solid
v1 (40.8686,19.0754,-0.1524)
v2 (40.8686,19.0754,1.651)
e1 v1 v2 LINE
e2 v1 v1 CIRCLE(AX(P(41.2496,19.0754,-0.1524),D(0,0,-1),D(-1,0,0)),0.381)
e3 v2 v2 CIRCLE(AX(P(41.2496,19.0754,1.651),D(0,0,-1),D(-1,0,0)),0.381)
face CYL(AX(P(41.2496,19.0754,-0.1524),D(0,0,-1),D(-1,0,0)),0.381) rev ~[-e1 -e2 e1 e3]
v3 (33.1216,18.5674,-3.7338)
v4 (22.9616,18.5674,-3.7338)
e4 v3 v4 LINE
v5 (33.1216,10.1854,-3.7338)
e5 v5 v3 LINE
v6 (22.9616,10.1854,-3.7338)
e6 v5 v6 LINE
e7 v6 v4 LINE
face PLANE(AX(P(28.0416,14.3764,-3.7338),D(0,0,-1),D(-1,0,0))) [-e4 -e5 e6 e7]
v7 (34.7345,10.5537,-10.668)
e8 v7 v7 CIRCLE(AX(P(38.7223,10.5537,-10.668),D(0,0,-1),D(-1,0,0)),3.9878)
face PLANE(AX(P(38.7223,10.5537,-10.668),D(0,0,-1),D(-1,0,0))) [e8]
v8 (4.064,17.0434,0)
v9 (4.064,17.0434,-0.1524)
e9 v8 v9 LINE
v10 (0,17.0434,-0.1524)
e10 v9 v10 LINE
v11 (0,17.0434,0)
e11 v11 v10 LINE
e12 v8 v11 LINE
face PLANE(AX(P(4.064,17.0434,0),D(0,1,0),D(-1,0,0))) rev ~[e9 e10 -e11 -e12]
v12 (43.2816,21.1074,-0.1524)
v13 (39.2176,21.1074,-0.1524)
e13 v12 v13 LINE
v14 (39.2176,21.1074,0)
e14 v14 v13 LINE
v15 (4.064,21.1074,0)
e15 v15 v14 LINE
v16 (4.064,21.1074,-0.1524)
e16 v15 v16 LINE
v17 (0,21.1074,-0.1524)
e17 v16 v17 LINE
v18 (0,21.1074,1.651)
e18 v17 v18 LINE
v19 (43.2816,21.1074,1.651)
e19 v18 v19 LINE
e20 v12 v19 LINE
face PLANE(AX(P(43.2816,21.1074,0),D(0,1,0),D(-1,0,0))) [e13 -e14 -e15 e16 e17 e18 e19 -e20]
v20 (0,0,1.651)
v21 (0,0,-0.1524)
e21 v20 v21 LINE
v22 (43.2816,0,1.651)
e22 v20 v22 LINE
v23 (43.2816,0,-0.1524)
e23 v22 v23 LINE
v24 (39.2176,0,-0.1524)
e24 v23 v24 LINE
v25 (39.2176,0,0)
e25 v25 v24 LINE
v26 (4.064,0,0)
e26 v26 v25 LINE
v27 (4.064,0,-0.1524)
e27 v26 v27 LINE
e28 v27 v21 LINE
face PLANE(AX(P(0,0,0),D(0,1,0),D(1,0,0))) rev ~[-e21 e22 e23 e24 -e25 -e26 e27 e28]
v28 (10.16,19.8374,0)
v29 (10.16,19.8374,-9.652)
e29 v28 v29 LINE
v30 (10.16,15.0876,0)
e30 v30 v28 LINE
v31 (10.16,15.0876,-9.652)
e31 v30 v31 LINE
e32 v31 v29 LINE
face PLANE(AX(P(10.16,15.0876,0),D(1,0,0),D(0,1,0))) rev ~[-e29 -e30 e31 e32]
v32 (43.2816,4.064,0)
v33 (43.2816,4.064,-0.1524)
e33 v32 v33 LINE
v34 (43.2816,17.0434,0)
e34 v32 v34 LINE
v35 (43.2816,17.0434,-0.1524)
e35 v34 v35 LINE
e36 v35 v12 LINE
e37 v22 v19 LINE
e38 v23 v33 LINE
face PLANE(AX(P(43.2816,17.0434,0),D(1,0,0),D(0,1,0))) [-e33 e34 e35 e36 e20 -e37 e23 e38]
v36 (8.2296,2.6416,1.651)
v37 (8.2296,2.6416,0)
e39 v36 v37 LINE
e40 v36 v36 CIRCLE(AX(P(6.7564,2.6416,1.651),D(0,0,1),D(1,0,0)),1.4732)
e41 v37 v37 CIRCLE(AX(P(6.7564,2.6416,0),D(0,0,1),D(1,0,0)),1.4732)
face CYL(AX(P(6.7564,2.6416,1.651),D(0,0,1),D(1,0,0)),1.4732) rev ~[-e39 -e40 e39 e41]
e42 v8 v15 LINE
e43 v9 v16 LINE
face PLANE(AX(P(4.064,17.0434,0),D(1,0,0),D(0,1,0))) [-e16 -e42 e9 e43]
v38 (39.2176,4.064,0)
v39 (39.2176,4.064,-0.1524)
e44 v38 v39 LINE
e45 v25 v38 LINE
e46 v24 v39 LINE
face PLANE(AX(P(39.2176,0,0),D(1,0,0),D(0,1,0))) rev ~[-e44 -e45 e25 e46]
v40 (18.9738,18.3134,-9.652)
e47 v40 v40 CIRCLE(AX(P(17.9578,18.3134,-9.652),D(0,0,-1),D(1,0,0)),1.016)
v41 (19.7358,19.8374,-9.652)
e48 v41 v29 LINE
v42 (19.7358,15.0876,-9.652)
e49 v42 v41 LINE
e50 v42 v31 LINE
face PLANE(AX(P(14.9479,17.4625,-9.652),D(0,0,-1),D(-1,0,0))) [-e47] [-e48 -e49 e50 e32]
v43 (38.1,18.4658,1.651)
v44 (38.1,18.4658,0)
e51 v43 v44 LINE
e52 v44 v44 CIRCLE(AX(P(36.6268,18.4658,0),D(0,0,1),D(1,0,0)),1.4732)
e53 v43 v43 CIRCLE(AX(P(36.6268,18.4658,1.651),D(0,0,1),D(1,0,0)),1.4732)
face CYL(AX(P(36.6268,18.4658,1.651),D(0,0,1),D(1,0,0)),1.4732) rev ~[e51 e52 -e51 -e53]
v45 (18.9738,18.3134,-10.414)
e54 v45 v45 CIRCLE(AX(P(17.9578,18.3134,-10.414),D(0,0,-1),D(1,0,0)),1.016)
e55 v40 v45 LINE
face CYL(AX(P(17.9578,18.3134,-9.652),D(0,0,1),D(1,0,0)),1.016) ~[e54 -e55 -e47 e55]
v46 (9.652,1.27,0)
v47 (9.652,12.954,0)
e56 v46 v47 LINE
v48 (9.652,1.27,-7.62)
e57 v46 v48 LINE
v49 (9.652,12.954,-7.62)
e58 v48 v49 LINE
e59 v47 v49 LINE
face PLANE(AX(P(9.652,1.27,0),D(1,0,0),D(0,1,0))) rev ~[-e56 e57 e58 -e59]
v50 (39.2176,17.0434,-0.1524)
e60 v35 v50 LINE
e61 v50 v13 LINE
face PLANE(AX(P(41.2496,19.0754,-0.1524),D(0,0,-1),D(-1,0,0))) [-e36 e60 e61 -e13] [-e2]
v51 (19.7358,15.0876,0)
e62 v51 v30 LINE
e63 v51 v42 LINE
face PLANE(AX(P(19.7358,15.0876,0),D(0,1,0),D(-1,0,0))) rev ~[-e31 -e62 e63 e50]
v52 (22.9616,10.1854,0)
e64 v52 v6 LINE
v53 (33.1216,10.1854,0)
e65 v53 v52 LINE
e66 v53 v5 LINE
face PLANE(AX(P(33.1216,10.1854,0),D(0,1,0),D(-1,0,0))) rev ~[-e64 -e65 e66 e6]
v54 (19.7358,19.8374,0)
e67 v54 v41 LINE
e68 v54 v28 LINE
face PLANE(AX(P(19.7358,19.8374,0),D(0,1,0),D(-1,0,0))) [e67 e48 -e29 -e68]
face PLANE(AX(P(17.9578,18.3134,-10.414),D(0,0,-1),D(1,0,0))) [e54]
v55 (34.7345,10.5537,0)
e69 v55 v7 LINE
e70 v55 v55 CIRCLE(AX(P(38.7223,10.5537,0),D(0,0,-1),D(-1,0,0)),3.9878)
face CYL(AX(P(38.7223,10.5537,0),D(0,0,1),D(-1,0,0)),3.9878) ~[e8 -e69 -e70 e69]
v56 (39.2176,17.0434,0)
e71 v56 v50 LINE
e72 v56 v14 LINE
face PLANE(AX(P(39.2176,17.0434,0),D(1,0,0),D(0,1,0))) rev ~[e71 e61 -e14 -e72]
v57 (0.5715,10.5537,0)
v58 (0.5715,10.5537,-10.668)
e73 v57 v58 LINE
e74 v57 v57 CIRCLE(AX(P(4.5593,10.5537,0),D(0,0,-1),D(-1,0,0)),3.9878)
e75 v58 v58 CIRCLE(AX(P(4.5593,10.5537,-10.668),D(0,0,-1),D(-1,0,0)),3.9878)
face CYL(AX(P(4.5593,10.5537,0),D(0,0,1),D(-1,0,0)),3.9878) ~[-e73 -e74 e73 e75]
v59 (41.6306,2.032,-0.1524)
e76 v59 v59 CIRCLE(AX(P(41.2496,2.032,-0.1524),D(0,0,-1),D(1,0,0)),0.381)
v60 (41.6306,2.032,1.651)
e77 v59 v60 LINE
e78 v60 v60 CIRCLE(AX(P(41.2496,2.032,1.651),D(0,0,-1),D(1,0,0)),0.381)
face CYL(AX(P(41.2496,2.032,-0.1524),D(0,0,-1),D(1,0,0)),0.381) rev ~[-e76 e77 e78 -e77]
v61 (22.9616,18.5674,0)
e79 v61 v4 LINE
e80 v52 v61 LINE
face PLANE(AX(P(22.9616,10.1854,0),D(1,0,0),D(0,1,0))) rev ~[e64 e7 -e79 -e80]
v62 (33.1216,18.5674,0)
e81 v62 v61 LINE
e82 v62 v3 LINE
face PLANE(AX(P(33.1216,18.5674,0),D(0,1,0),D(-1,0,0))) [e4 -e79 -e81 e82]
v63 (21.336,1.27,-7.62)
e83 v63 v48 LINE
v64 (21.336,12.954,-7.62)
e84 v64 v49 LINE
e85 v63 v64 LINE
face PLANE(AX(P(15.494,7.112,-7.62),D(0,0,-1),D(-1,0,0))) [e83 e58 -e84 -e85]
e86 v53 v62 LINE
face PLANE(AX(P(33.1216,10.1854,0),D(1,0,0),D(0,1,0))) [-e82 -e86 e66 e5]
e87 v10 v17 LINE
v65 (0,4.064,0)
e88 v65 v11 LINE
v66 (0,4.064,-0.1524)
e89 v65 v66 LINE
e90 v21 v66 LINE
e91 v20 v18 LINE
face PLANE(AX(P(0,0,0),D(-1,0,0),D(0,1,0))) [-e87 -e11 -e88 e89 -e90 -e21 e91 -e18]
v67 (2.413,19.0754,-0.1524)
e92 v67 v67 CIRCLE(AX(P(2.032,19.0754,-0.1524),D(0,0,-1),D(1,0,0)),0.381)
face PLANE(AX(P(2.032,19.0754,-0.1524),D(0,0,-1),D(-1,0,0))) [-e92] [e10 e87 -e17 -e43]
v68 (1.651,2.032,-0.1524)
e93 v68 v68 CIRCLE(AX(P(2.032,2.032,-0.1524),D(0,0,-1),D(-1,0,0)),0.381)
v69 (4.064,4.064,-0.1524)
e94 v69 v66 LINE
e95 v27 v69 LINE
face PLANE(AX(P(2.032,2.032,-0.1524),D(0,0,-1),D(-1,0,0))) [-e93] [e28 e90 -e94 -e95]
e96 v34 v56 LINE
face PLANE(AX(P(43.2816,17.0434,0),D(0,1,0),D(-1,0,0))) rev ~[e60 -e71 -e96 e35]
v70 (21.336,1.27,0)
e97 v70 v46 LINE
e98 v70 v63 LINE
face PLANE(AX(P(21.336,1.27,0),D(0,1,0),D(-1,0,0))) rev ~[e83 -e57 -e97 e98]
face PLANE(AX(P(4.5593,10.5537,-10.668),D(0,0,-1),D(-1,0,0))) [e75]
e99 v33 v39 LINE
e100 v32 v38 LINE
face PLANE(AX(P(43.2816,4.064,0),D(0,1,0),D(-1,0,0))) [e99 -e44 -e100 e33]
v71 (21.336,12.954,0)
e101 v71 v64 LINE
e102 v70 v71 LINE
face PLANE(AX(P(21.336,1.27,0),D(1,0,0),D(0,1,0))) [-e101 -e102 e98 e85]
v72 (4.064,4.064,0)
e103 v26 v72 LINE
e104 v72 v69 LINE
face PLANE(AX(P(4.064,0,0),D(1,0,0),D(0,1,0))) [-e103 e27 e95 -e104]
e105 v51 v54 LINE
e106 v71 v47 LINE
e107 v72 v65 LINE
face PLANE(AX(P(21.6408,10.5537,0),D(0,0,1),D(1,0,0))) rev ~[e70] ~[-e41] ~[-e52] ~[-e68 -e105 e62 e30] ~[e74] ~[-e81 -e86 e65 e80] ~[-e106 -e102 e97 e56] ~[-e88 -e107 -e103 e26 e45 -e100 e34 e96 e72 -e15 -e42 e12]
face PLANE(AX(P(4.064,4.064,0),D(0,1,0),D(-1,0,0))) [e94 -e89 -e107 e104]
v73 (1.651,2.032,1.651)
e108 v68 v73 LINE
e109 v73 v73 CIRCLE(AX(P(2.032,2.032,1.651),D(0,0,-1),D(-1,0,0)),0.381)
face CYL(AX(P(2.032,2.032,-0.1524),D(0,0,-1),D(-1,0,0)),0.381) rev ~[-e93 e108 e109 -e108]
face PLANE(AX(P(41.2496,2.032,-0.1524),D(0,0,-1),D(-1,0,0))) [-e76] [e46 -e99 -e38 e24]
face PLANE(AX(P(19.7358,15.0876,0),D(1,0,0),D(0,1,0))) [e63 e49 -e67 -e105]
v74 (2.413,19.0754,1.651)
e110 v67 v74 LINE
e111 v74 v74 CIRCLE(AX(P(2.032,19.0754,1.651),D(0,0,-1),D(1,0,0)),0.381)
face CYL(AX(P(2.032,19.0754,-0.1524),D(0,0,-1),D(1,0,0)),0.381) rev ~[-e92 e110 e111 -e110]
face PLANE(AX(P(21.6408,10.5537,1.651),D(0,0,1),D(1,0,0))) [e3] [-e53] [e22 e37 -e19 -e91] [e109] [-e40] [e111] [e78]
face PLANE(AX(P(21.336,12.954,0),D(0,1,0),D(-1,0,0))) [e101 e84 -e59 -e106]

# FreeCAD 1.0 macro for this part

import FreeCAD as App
import Part
import Sketcher
Q = App.Units.Quantity

doc = App.newDocument("Part")
body = doc.addObject("PartDesign::Body", "Body")

sketch1 = body.newObject("Sketcher::SketchObject", "Sketch")
sketch1.AttachmentSupport = (doc.getObject("XY_Plane"), [""])
sketch1.MapMode = "FlatFace"
sketch1.addGeometry([
    Part.LineSegment(App.Vector(0, 21, 0), App.Vector(0, 0, 0)),
    Part.LineSegment(App.Vector(0, 0, 0), App.Vector(43, 0, 0)),
    Part.LineSegment(App.Vector(43, 0, 0), App.Vector(43, 21, 0)),
    Part.LineSegment(App.Vector(43, 21, 0), App.Vector(0, 21, 0)),
], False)
sketch1.addConstraint([
    Sketcher.Constraint("Coincident", 0, 2, 1, 1),
    Sketcher.Constraint("Coincident", 1, 2, 2, 1),
    Sketcher.Constraint("Coincident", 2, 2, 3, 1),
    Sketcher.Constraint("Coincident", 3, 2, 0, 1),
    Sketcher.Constraint("Vertical", 0),
    Sketcher.Constraint("Horizontal", 1),
    Sketcher.Constraint("Vertical", 2),
    Sketcher.Constraint("Horizontal", 3),
    Sketcher.Constraint("Coincident", 0, 2, -1, 1),
    Sketcher.Constraint("DistanceX", 1, 1, 1, 2, Q("1.704 in")),
    Sketcher.Constraint("DistanceY", 0, 2, 0, 1, Q("0.831 in")),
])
pad1 = body.newObject("PartDesign::Pad", "Pad")
pad1.Profile = sketch1
pad1.Length = Q("0.065 in")

sketch2 = body.newObject("Sketcher::SketchObject", "Sketch001")
sketch2.AttachmentSupport = (doc.getObject("XY_Plane"), [""])
sketch2.MapMode = "FlatFace"
sketch2.AttachmentOffset = App.Placement(App.Vector(0, 0, 0.065 * 25.4), App.Rotation())
sketch2.addGeometry([
    Part.Circle(App.Vector(36.6, 18.5, 0), App.Vector(0, 0, 1), 1.5),
    Part.Circle(App.Vector(6.8, 2.6, 0), App.Vector(0, 0, 1), 1.5),
], False)
sketch2.addConstraint([
    Sketcher.Constraint("Equal", 0, 1),
    Sketcher.Constraint("Diameter", 0, Q("0.116 in")),
    Sketcher.Constraint("DistanceX", -1, 1, 0, 3, Q("1.442 in")),
    Sketcher.Constraint("DistanceY", -1, 1, 0, 3, Q("0.727 in")),
    Sketcher.Constraint("DistanceX", -1, 1, 1, 3, Q("0.266 in")),
    Sketcher.Constraint("DistanceY", -1, 1, 1, 3, Q("0.104 in")),
])
pocket1 = body.newObject("PartDesign::Pocket", "Pocket")
pocket1.Profile = sketch2
pocket1.Type = "ThroughAll"

sketch3 = body.newObject("Sketcher::SketchObject", "Sketch002")
sketch3.AttachmentSupport = (doc.getObject("XY_Plane"), [""])
sketch3.MapMode = "FlatFace"
sketch3.addGeometry([
    Part.Circle(App.Vector(4.6, 10.6, 0), App.Vector(0, 0, 1), 4),
    Part.Circle(App.Vector(38.7, 10.6, 0), App.Vector(0, 0, 1), 4),
], False)
sketch3.addConstraint([
    Sketcher.Constraint("Equal", 0, 1),
    Sketcher.Constraint("Horizontal", 0, 3, 1, 3),
    Sketcher.Constraint("Diameter", 0, Q("0.314 in")),
    Sketcher.Constraint("DistanceX", 0, 3, 1, 3, Q("1.345 in")),
    Sketcher.Constraint("DistanceX", -1, 1, 0, 3, Q("0.1795 in")),
    Sketcher.Constraint("DistanceY", -1, 1, 0, 3, Q("0.4155 in")),
])
pad2 = body.newObject("PartDesign::Pad", "Pad001")
pad2.Profile = sketch3
pad2.Length = Q("0.42 in")
pad2.Reversed = True

sketch4 = body.newObject("Sketcher::SketchObject", "Sketch003")
sketch4.AttachmentSupport = (doc.getObject("XY_Plane"), [""])
sketch4.MapMode = "FlatFace"
sketch4.addGeometry([
    Part.LineSegment(App.Vector(33, 19, 0), App.Vector(33, 10, 0)),
    Part.LineSegment(App.Vector(33, 10, 0), App.Vector(23, 10, 0)),
    Part.LineSegment(App.Vector(23, 10, 0), App.Vector(23, 19, 0)),
    Part.LineSegment(App.Vector(23, 19, 0), App.Vector(33, 19, 0)),
], False)
sketch4.addConstraint([
    Sketcher.Constraint("Coincident", 0, 2, 1, 1),
    Sketcher.Constraint("Coincident", 1, 2, 2, 1),
    Sketcher.Constraint("Coincident", 2, 2, 3, 1),
    Sketcher.Constraint("Coincident", 3, 2, 0, 1),
    Sketcher.Constraint("Vertical", 0),
    Sketcher.Constraint("Horizontal", 1),
    Sketcher.Constraint("Vertical", 2),
    Sketcher.Constraint("Horizontal", 3),
    Sketcher.Constraint("DistanceX", 1, 2, 1, 1, Q("0.4 in")),
    Sketcher.Constraint("DistanceY", 0, 2, 0, 1, Q("0.33 in")),
    Sketcher.Constraint("DistanceX", -1, 1, 0, 2, Q("1.304 in")),
    Sketcher.Constraint("DistanceY", -1, 1, 0, 2, Q("0.401 in")),
])
pad3 = body.newObject("PartDesign::Pad", "Pad002")
pad3.Profile = sketch4
pad3.Length = Q("0.147 in")
pad3.Reversed = True

sketch5 = body.newObject("Sketcher::SketchObject", "Sketch004")
sketch5.AttachmentSupport = (doc.getObject("XY_Plane"), [""])
sketch5.MapMode = "FlatFace"
sketch5.addGeometry([
    Part.LineSegment(App.Vector(21, 13, 0), App.Vector(21, 1, 0)),
    Part.LineSegment(App.Vector(21, 1, 0), App.Vector(10, 1, 0)),
    Part.LineSegment(App.Vector(10, 1, 0), App.Vector(10, 13, 0)),
    Part.LineSegment(App.Vector(10, 13, 0), App.Vector(21, 13, 0)),
], False)
sketch5.addConstraint([
    Sketcher.Constraint("Coincident", 0, 2, 1, 1),
    Sketcher.Constraint("Coincident", 1, 2, 2, 1),
    Sketcher.Constraint("Coincident", 2, 2, 3, 1),
    Sketcher.Constraint("Coincident", 3, 2, 0, 1),
    Sketcher.Constraint("Vertical", 0),
    Sketcher.Constraint("Horizontal", 1),
    Sketcher.Constraint("Vertical", 2),
    Sketcher.Constraint("Horizontal", 3),
    Sketcher.Constraint("Equal", 3, 0),
    Sketcher.Constraint("DistanceX", 1, 2, 1, 1, Q("0.46 in")),
    Sketcher.Constraint("DistanceX", -1, 1, 0, 2, Q("0.84 in")),
    Sketcher.Constraint("DistanceY", -1, 1, 0, 2, Q("0.05 in")),
])
pad4 = body.newObject("PartDesign::Pad", "Pad003")
pad4.Profile = sketch5
pad4.Length = Q("0.3 in")
pad4.Reversed = True

sketch6 = body.newObject("Sketcher::SketchObject", "Sketch005")
sketch6.AttachmentSupport = (doc.getObject("XY_Plane"), [""])
sketch6.MapMode = "FlatFace"
sketch6.addGeometry([
    Part.LineSegment(App.Vector(19.7, 19.8, 0), App.Vector(19.7, 15.1, 0)),
    Part.LineSegment(App.Vector(19.7, 15.1, 0), App.Vector(10.2, 15.1, 0)),
    Part.LineSegment(App.Vector(10.2, 15.1, 0), App.Vector(10.2, 19.8, 0)),
    Part.LineSegment(App.Vector(10.2, 19.8, 0), App.Vector(19.7, 19.8, 0)),
], False)
sketch6.addConstraint([
    Sketcher.Constraint("Coincident", 0, 2, 1, 1),
    Sketcher.Constraint("Coincident", 1, 2, 2, 1),
    Sketcher.Constraint("Coincident", 2, 2, 3, 1),
    Sketcher.Constraint("Coincident", 3, 2, 0, 1),
    Sketcher.Constraint("Vertical", 0),
    Sketcher.Constraint("Horizontal", 1),
    Sketcher.Constraint("Vertical", 2),
    Sketcher.Constraint("Horizontal", 3),
    Sketcher.Constraint("DistanceX", -1, 1, 1, 2, Q("0.4 in")),
    Sketcher.Constraint("DistanceX", 1, 2, 1, 1, Q("0.377 in")),
    Sketcher.Constraint("DistanceY", 0, 2, 0, 1, Q("0.187 in")),
    Sketcher.Constraint("DistanceY", -1, 1, 0, 2, Q("0.594 in")),
])
pad5 = body.newObject("PartDesign::Pad", "Pad004")
pad5.Profile = sketch6
pad5.Length = Q("0.38 in")
pad5.Reversed = True

sketch7 = body.newObject("Sketcher::SketchObject", "Sketch006")
sketch7.AttachmentSupport = (doc.getObject("XY_Plane"), [""])
sketch7.MapMode = "FlatFace"
sketch7.AttachmentOffset = App.Placement(App.Vector(0, 0, -0.38 * 25.4), App.Rotation())
sketch7.addGeometry(Part.Circle(App.Vector(18, 18.3, 0), App.Vector(0, 0, 1), 1), False)
sketch7.addConstraint([
    Sketcher.Constraint("Diameter", 0, Q("0.08 in")),
    Sketcher.Constraint("DistanceX", -1, 1, 0, 3, Q("0.707 in")),
    Sketcher.Constraint("DistanceY", -1, 1, 0, 3, Q("0.721 in")),
])
pad6 = body.newObject("PartDesign::Pad", "Pad005")
pad6.Profile = sketch7
pad6.Length = Q("0.03 in")
pad6.Reversed = True

sketch8 = body.newObject("Sketcher::SketchObject", "Sketch007")
sketch8.AttachmentSupport = (doc.getObject("XY_Plane"), [""])
sketch8.MapMode = "FlatFace"
sketch8.addGeometry([
    Part.LineSegment(App.Vector(43.3, 21.1, 0), App.Vector(43.3, 17, 0)),
    Part.LineSegment(App.Vector(43.3, 17, 0), App.Vector(39.2, 17, 0)),
    Part.LineSegment(App.Vector(39.2, 17, 0), App.Vector(39.2, 21.1, 0)),
    Part.LineSegment(App.Vector(39.2, 21.1, 0), App.Vector(43.3, 21.1, 0)),
    Part.LineSegment(App.Vector(43.3, 4.1, 0), App.Vector(43.3, 0, 0)),
    Part.LineSegment(App.Vector(43.3, 0, 0), App.Vector(39.2, 0, 0)),
    Part.LineSegment(App.Vector(39.2, 0, 0), App.Vector(39.2, 4.1, 0)),
    Part.LineSegment(App.Vector(39.2, 4.1, 0), App.Vector(43.3, 4.1, 0)),
    Part.LineSegment(App.Vector(4.1, 21.1, 0), App.Vector(4.1, 17, 0)),
    Part.LineSegment(App.Vector(4.1, 17, 0), App.Vector(0, 17, 0)),
    Part.LineSegment(App.Vector(0, 17, 0), App.Vector(0, 21.1, 0)),
    Part.LineSegment(App.Vector(0, 21.1, 0), App.Vector(4.1, 21.1, 0)),
    Part.LineSegment(App.Vector(4.1, 4.1, 0), App.Vector(4.1, 0, 0)),
    Part.LineSegment(App.Vector(4.1, 0, 0), App.Vector(0, 0, 0)),
    Part.LineSegment(App.Vector(0, 0, 0), App.Vector(0, 4.1, 0)),
    Part.LineSegment(App.Vector(0, 4.1, 0), App.Vector(4.1, 4.1, 0)),
], False)
sketch8.addConstraint([
    Sketcher.Constraint("Coincident", 0, 2, 1, 1),
    Sketcher.Constraint("Coincident", 1, 2, 2, 1),
    Sketcher.Constraint("Coincident", 2, 2, 3, 1),
    Sketcher.Constraint("Coincident", 3, 2, 0, 1),
    Sketcher.Constraint("Coincident", 4, 2, 5, 1),
    Sketcher.Constraint("Coincident", 5, 2, 6, 1),
    Sketcher.Constraint("Coincident", 6, 2, 7, 1),
    Sketcher.Constraint("Coincident", 7, 2, 4, 1),
    Sketcher.Constraint("Coincident", 8, 2, 9, 1),
    Sketcher.Constraint("Coincident", 9, 2, 10, 1),
    Sketcher.Constraint("Coincident", 10, 2, 11, 1),
    Sketcher.Constraint("Coincident", 11, 2, 8, 1),
    Sketcher.Constraint("Coincident", 12, 2, 13, 1),
    Sketcher.Constraint("Coincident", 13, 2, 14, 1),
    Sketcher.Constraint("Coincident", 14, 2, 15, 1),
    Sketcher.Constraint("Coincident", 15, 2, 12, 1),
    Sketcher.Constraint("Vertical", 0),
    Sketcher.Constraint("Horizontal", 1),
    Sketcher.Constraint("Vertical", 2),
    Sketcher.Constraint("Horizontal", 3),
    Sketcher.Constraint("Vertical", 4),
    Sketcher.Constraint("Horizontal", 5),
    Sketcher.Constraint("Vertical", 6),
    Sketcher.Constraint("Horizontal", 7),
    Sketcher.Constraint("Vertical", 8),
    Sketcher.Constraint("Horizontal", 9),
    Sketcher.Constraint("Vertical", 10),
    Sketcher.Constraint("Horizontal", 11),
    Sketcher.Constraint("Vertical", 12),
    Sketcher.Constraint("Horizontal", 13),
    Sketcher.Constraint("Vertical", 14),
    Sketcher.Constraint("Horizontal", 15),
    Sketcher.Constraint("Coincident", 13, 2, -1, 1),
    Sketcher.Constraint("PointOnObject", 4, 2, -1),
    Sketcher.Constraint("PointOnObject", 9, 2, -2),
    Sketcher.Constraint("Horizontal", 1, 2, 8, 2),
    Sketcher.Constraint("Horizontal", 3, 2, 10, 2),
    Sketcher.Constraint("Horizontal", 7, 2, 14, 2),
    Sketcher.Constraint("Vertical", 3, 2, 4, 2),
    Sketcher.Constraint("Vertical", 2, 2, 5, 2),
    Sketcher.Constraint("Vertical", 11, 2, 12, 2),
    Sketcher.Constraint("Equal", 7, 9),
    Sketcher.Constraint("Equal", 15, 0),
    Sketcher.Constraint("Equal", 2, 4),
    Sketcher.Constraint("DistanceX", 1, 2, 1, 1, Q("0.16 in")),
    Sketcher.Constraint("DistanceX", -1, 1, 0, 2, Q("1.704 in")),
    Sketcher.Constraint("DistanceY", -1, 1, 0, 2, Q("0.671 in")),
])
pad7 = body.newObject("PartDesign::Pad", "Pad006")
pad7.Profile = sketch8
pad7.Length = Q("0.006 in")
pad7.Reversed = True

sketch9 = body.newObject("Sketcher::SketchObject", "Sketch008")
sketch9.AttachmentSupport = (doc.getObject("XY_Plane"), [""])
sketch9.MapMode = "FlatFace"
sketch9.AttachmentOffset = App.Placement(App.Vector(0, 0, -0.006 * 25.4), App.Rotation())
sketch9.addGeometry([
    Part.Circle(App.Vector(41.25, 19.08, 0), App.Vector(0, 0, 1), 0.38),
    Part.Circle(App.Vector(2.03, 19.08, 0), App.Vector(0, 0, 1), 0.38),
    Part.Circle(App.Vector(2.03, 2.03, 0), App.Vector(0, 0, 1), 0.38),
    Part.Circle(App.Vector(41.25, 2.03, 0), App.Vector(0, 0, 1), 0.38),
], False)
sketch9.addConstraint([
    Sketcher.Constraint("Equal", 0, 1),
    Sketcher.Constraint("Equal", 1, 2),
    Sketcher.Constraint("Equal", 2, 3),
    Sketcher.Constraint("Horizontal", 0, 3, 1, 3),
    Sketcher.Constraint("Horizontal", 2, 3, 3, 3),
    Sketcher.Constraint("Vertical", 1, 3, 2, 3),
    Sketcher.Constraint("Vertical", 0, 3, 3, 3),
    Sketcher.Constraint("Diameter", 0, Q("0.03 in")),
    Sketcher.Constraint("DistanceX", -1, 1, 1, 3, Q("0.08 in")),
    Sketcher.Constraint("DistanceY", -1, 1, 2, 3, Q("0.08 in")),
    Sketcher.Constraint("DistanceX", -1, 1, 0, 3, Q("1.624 in")),
    Sketcher.Constraint("DistanceY", -1, 1, 0, 3, Q("0.751 in")),
])
pocket2 = body.newObject("PartDesign::Pocket", "Pocket001")
pocket2.Profile = sketch9
pocket2.Type = "ThroughAll"
pocket2.Reversed = True

doc.recompute()
